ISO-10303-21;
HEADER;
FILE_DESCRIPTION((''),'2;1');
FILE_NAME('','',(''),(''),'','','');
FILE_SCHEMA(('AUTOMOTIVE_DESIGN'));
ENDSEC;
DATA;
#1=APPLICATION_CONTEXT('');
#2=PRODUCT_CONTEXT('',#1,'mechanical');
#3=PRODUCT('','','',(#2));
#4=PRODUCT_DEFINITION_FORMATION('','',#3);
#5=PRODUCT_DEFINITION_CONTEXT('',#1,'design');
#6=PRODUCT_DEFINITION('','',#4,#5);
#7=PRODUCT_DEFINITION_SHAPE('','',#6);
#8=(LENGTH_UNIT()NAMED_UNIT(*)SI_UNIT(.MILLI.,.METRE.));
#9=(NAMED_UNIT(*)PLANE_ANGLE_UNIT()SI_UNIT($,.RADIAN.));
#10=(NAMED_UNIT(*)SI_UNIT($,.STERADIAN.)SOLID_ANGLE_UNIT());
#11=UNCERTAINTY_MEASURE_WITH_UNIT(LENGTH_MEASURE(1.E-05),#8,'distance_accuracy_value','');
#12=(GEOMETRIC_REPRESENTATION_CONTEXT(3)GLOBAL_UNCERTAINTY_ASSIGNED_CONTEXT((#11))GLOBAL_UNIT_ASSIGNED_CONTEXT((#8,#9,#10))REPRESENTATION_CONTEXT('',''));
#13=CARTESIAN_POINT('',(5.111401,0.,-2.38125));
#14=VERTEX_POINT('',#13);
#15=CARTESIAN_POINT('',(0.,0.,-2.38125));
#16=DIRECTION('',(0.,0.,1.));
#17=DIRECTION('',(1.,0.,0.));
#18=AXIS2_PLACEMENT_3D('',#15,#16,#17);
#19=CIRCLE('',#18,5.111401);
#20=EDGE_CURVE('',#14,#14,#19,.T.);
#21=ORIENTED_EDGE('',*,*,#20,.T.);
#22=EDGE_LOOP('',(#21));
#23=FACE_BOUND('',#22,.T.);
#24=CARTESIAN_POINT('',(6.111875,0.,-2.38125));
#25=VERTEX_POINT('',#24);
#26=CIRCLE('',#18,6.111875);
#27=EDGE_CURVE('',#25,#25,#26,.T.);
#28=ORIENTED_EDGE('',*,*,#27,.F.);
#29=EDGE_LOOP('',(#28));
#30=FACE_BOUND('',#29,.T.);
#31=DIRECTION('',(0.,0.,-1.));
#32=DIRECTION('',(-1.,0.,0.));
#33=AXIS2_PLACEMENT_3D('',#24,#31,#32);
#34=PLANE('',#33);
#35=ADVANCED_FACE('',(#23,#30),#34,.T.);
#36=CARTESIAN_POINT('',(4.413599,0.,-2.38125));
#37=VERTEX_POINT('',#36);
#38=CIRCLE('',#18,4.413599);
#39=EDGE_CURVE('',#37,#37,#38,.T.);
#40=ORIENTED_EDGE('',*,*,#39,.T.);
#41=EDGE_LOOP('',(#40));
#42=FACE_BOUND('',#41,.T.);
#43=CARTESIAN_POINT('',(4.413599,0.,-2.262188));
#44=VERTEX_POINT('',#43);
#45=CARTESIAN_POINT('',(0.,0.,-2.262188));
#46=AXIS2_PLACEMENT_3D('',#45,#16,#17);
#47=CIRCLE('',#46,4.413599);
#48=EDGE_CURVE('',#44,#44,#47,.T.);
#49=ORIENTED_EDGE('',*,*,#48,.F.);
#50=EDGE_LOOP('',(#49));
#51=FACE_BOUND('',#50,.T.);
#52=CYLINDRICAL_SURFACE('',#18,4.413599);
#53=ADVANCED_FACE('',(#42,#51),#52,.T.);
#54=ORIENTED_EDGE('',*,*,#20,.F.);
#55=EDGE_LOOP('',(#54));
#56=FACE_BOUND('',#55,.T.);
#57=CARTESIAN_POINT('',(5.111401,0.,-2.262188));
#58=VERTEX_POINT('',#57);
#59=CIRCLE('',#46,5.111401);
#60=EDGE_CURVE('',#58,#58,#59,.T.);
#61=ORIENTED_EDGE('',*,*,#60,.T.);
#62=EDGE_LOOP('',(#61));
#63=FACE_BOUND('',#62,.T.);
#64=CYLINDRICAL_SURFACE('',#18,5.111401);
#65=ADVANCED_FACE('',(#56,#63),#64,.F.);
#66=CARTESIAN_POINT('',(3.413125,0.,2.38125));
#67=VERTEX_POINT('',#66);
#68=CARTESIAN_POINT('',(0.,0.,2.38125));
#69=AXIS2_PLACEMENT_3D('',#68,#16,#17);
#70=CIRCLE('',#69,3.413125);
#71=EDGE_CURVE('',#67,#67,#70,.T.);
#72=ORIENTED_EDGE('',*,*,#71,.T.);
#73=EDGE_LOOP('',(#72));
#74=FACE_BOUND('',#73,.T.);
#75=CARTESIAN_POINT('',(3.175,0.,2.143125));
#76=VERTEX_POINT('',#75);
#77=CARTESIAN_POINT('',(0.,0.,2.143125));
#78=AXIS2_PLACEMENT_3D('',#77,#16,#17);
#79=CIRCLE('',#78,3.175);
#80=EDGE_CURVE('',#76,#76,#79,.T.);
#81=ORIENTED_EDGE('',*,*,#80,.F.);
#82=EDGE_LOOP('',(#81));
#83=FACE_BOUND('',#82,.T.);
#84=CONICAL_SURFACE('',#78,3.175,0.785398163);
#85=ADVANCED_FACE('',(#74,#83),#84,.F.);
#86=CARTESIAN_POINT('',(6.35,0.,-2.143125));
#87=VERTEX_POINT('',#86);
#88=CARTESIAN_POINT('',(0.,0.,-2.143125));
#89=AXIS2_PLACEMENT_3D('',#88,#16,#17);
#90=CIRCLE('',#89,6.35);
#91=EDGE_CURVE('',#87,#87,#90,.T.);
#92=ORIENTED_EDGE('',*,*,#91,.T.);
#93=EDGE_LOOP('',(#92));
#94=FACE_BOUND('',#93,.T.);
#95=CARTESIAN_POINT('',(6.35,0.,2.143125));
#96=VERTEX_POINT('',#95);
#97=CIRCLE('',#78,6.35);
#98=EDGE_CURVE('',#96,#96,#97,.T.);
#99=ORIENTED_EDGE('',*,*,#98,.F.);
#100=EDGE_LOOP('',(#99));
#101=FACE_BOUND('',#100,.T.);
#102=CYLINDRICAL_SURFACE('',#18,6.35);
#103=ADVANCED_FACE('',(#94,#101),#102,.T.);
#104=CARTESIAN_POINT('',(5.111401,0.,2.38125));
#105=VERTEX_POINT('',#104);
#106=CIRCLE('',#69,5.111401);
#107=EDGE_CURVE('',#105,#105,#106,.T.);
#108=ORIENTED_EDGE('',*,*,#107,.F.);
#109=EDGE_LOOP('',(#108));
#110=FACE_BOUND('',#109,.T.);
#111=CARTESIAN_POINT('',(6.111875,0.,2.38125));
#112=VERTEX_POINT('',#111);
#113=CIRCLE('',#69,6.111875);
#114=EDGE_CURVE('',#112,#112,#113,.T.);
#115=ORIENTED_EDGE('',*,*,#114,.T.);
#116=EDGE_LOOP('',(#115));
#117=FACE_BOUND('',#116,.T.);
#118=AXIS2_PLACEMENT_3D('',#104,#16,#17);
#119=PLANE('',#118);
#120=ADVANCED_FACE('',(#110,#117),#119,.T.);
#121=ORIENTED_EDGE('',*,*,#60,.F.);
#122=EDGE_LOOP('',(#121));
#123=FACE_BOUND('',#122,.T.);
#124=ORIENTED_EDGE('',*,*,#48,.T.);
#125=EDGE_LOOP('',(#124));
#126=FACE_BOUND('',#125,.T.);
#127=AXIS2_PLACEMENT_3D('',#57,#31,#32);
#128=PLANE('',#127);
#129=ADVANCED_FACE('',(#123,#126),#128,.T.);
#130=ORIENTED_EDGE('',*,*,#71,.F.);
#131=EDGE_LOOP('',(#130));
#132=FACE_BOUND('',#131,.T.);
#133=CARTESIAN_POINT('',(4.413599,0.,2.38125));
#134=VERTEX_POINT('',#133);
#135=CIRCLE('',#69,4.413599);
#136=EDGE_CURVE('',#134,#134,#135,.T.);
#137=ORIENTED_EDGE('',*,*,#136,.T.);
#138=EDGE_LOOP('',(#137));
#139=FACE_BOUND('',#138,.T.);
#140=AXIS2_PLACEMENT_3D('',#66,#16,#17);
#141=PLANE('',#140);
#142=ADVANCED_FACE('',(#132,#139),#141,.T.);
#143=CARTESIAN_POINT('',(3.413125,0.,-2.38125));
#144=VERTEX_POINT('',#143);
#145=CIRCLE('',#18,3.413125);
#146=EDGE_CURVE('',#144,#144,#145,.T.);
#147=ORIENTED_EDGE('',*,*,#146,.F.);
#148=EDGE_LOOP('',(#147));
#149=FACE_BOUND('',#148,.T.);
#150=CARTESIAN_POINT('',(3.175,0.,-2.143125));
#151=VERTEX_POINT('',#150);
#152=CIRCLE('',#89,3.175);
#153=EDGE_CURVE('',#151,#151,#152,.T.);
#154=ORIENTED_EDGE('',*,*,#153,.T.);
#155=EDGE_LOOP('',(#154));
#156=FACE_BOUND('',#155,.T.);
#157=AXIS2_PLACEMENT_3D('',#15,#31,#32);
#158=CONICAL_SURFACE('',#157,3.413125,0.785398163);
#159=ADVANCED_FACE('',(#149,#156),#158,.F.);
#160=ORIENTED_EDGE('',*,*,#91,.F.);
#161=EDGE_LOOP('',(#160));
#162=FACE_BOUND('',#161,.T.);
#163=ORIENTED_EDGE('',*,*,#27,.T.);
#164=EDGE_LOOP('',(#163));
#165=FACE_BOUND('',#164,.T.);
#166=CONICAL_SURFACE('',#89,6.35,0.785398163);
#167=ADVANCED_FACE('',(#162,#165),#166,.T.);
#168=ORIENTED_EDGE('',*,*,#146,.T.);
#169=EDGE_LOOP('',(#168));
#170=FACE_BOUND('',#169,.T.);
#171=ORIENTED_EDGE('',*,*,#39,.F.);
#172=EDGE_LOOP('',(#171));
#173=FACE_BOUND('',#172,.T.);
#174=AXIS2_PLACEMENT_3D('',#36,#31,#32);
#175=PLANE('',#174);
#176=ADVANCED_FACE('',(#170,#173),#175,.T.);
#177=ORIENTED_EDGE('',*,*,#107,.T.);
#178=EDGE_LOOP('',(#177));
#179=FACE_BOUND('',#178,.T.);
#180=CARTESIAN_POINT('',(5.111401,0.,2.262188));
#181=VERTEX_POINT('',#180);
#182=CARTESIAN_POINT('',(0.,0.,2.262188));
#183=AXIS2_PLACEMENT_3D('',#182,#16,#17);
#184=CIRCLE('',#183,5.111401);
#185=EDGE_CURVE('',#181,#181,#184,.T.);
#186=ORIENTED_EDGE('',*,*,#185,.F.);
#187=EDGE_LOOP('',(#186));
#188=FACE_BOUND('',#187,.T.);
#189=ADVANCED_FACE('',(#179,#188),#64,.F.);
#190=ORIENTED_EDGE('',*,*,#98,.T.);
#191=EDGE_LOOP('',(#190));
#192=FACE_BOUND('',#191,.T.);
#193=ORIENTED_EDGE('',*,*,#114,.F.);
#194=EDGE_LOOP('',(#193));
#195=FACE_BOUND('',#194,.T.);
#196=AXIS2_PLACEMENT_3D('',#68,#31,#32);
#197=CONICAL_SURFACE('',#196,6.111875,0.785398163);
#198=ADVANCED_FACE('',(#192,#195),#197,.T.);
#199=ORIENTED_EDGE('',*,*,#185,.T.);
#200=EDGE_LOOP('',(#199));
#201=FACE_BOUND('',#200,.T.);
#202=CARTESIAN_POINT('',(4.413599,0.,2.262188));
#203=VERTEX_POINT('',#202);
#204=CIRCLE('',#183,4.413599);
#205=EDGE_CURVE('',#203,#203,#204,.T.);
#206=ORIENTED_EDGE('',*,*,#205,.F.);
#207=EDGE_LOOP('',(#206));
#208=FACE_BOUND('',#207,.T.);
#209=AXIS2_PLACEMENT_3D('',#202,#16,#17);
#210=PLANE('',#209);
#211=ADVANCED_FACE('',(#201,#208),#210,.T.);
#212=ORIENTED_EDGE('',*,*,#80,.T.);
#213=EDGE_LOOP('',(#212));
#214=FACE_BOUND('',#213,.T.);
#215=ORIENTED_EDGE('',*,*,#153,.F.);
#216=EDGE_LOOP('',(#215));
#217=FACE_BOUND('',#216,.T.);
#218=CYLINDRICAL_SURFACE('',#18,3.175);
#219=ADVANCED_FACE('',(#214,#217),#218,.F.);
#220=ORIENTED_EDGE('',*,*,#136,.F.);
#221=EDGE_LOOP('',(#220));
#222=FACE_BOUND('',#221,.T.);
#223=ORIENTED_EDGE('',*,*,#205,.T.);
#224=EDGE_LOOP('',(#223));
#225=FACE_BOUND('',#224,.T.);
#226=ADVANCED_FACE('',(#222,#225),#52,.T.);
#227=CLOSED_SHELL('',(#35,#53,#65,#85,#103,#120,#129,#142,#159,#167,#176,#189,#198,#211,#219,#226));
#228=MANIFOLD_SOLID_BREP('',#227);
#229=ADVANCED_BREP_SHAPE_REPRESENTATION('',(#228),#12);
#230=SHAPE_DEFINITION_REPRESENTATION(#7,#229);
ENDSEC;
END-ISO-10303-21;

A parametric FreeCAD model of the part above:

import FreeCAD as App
import Part
import Sketcher

V = App.Vector


def add_polygon(sketch, points):
    """Adds a closed chain of lines whose ends are joined by coincident constraints."""
    first, n = sketch.GeometryCount, len(points)
    for a, b in zip(points, points[1:] + points[:1]):
        sketch.addGeometry(Part.LineSegment(App.Vector(*a, 0), App.Vector(*b, 0)), False)
    for i in range(n):
        sketch.addConstraint(Sketcher.Constraint("Coincident", first + i, 2, first + (i + 1) % n, 1))

doc = App.newDocument("Part")
body = doc.addObject("PartDesign::Body", "Body")

# Sketch on XZ plane
sketch1 = doc.addObject("Sketcher::SketchObject", "Sketch")
body.addObject(sketch1)
sketch1.AttachmentSupport = (doc.XZ_Plane, [""])
sketch1.MapMode = "FlatFace"
add_polygon(sketch1, [(6.35, 2.14), (6.35, -2.14), (6.11, -2.38), (5.11, -2.38), (5.11, -2.26), (4.41, -2.26), (4.41, -2.38), (3.41, -2.38), (3.17, -2.14), (3.17, 2.14), (3.41, 2.38), (4.41, 2.38), (4.41, 2.26), (5.11, 2.26), (5.11, 2.38), (6.11, 2.38)])  # lines 0-15
sketch1.addConstraint([
    Sketcher.Constraint("Vertical", 0),
    Sketcher.Constraint("Horizontal", 2),
    Sketcher.Constraint("Vertical", 3),
    Sketcher.Constraint("Horizontal", 4),
    Sketcher.Constraint("Vertical", 5),
    Sketcher.Constraint("Horizontal", 6),
    Sketcher.Constraint("Vertical", 8),
    Sketcher.Constraint("Horizontal", 10),
    Sketcher.Constraint("Vertical", 11),
    Sketcher.Constraint("Horizontal", 12),
    Sketcher.Constraint("Vertical", 13),
    Sketcher.Constraint("Horizontal", 14),
    Sketcher.Constraint("Symmetric", 6, 2, 9, 2, -1),
    Sketcher.Constraint("Symmetric", 4, 2, 11, 2, -1),
    Sketcher.Constraint("Symmetric", 2, 2, 13, 2, -1),
    Sketcher.Constraint("Perpendicular", 1, 7),
    Sketcher.Constraint("Perpendicular", 7, 9),
    Sketcher.Constraint("Perpendicular", 9, 15),
    Sketcher.Constraint("Horizontal", 2, 2, 5, 2),
    Sketcher.Constraint("Horizontal", 0, 2, 7, 2),
    Sketcher.Constraint("Horizontal", 8, 2, 15, 2),
    Sketcher.Constraint("Vertical", 1, 2, 14, 2),
    Sketcher.Constraint("Equal", 2, 6),
    Sketcher.Constraint("DistanceX", -1, 1, 0, 2, 6.35),
    Sketcher.Constraint("DistanceX", -1, 1, 7, 2, 3.175),
    Sketcher.Constraint("DistanceY", 0, 2, 0, 1, 4.28625),
    Sketcher.Constraint("DistanceX", -1, 1, 2, 2, 5.111401),
    Sketcher.Constraint("DistanceY", 6, 2, 9, 2, 4.7625),
    Sketcher.Constraint("DistanceY", 3, 1, 3, 2, 0.119063),
])
revolution = doc.addObject("PartDesign::Revolution", "Revolution")
body.addObject(revolution)
revolution.Profile = sketch1
revolution.ReferenceAxis = (sketch1, ["V_Axis"])
revolution.Angle = 360

doc.recompute()
